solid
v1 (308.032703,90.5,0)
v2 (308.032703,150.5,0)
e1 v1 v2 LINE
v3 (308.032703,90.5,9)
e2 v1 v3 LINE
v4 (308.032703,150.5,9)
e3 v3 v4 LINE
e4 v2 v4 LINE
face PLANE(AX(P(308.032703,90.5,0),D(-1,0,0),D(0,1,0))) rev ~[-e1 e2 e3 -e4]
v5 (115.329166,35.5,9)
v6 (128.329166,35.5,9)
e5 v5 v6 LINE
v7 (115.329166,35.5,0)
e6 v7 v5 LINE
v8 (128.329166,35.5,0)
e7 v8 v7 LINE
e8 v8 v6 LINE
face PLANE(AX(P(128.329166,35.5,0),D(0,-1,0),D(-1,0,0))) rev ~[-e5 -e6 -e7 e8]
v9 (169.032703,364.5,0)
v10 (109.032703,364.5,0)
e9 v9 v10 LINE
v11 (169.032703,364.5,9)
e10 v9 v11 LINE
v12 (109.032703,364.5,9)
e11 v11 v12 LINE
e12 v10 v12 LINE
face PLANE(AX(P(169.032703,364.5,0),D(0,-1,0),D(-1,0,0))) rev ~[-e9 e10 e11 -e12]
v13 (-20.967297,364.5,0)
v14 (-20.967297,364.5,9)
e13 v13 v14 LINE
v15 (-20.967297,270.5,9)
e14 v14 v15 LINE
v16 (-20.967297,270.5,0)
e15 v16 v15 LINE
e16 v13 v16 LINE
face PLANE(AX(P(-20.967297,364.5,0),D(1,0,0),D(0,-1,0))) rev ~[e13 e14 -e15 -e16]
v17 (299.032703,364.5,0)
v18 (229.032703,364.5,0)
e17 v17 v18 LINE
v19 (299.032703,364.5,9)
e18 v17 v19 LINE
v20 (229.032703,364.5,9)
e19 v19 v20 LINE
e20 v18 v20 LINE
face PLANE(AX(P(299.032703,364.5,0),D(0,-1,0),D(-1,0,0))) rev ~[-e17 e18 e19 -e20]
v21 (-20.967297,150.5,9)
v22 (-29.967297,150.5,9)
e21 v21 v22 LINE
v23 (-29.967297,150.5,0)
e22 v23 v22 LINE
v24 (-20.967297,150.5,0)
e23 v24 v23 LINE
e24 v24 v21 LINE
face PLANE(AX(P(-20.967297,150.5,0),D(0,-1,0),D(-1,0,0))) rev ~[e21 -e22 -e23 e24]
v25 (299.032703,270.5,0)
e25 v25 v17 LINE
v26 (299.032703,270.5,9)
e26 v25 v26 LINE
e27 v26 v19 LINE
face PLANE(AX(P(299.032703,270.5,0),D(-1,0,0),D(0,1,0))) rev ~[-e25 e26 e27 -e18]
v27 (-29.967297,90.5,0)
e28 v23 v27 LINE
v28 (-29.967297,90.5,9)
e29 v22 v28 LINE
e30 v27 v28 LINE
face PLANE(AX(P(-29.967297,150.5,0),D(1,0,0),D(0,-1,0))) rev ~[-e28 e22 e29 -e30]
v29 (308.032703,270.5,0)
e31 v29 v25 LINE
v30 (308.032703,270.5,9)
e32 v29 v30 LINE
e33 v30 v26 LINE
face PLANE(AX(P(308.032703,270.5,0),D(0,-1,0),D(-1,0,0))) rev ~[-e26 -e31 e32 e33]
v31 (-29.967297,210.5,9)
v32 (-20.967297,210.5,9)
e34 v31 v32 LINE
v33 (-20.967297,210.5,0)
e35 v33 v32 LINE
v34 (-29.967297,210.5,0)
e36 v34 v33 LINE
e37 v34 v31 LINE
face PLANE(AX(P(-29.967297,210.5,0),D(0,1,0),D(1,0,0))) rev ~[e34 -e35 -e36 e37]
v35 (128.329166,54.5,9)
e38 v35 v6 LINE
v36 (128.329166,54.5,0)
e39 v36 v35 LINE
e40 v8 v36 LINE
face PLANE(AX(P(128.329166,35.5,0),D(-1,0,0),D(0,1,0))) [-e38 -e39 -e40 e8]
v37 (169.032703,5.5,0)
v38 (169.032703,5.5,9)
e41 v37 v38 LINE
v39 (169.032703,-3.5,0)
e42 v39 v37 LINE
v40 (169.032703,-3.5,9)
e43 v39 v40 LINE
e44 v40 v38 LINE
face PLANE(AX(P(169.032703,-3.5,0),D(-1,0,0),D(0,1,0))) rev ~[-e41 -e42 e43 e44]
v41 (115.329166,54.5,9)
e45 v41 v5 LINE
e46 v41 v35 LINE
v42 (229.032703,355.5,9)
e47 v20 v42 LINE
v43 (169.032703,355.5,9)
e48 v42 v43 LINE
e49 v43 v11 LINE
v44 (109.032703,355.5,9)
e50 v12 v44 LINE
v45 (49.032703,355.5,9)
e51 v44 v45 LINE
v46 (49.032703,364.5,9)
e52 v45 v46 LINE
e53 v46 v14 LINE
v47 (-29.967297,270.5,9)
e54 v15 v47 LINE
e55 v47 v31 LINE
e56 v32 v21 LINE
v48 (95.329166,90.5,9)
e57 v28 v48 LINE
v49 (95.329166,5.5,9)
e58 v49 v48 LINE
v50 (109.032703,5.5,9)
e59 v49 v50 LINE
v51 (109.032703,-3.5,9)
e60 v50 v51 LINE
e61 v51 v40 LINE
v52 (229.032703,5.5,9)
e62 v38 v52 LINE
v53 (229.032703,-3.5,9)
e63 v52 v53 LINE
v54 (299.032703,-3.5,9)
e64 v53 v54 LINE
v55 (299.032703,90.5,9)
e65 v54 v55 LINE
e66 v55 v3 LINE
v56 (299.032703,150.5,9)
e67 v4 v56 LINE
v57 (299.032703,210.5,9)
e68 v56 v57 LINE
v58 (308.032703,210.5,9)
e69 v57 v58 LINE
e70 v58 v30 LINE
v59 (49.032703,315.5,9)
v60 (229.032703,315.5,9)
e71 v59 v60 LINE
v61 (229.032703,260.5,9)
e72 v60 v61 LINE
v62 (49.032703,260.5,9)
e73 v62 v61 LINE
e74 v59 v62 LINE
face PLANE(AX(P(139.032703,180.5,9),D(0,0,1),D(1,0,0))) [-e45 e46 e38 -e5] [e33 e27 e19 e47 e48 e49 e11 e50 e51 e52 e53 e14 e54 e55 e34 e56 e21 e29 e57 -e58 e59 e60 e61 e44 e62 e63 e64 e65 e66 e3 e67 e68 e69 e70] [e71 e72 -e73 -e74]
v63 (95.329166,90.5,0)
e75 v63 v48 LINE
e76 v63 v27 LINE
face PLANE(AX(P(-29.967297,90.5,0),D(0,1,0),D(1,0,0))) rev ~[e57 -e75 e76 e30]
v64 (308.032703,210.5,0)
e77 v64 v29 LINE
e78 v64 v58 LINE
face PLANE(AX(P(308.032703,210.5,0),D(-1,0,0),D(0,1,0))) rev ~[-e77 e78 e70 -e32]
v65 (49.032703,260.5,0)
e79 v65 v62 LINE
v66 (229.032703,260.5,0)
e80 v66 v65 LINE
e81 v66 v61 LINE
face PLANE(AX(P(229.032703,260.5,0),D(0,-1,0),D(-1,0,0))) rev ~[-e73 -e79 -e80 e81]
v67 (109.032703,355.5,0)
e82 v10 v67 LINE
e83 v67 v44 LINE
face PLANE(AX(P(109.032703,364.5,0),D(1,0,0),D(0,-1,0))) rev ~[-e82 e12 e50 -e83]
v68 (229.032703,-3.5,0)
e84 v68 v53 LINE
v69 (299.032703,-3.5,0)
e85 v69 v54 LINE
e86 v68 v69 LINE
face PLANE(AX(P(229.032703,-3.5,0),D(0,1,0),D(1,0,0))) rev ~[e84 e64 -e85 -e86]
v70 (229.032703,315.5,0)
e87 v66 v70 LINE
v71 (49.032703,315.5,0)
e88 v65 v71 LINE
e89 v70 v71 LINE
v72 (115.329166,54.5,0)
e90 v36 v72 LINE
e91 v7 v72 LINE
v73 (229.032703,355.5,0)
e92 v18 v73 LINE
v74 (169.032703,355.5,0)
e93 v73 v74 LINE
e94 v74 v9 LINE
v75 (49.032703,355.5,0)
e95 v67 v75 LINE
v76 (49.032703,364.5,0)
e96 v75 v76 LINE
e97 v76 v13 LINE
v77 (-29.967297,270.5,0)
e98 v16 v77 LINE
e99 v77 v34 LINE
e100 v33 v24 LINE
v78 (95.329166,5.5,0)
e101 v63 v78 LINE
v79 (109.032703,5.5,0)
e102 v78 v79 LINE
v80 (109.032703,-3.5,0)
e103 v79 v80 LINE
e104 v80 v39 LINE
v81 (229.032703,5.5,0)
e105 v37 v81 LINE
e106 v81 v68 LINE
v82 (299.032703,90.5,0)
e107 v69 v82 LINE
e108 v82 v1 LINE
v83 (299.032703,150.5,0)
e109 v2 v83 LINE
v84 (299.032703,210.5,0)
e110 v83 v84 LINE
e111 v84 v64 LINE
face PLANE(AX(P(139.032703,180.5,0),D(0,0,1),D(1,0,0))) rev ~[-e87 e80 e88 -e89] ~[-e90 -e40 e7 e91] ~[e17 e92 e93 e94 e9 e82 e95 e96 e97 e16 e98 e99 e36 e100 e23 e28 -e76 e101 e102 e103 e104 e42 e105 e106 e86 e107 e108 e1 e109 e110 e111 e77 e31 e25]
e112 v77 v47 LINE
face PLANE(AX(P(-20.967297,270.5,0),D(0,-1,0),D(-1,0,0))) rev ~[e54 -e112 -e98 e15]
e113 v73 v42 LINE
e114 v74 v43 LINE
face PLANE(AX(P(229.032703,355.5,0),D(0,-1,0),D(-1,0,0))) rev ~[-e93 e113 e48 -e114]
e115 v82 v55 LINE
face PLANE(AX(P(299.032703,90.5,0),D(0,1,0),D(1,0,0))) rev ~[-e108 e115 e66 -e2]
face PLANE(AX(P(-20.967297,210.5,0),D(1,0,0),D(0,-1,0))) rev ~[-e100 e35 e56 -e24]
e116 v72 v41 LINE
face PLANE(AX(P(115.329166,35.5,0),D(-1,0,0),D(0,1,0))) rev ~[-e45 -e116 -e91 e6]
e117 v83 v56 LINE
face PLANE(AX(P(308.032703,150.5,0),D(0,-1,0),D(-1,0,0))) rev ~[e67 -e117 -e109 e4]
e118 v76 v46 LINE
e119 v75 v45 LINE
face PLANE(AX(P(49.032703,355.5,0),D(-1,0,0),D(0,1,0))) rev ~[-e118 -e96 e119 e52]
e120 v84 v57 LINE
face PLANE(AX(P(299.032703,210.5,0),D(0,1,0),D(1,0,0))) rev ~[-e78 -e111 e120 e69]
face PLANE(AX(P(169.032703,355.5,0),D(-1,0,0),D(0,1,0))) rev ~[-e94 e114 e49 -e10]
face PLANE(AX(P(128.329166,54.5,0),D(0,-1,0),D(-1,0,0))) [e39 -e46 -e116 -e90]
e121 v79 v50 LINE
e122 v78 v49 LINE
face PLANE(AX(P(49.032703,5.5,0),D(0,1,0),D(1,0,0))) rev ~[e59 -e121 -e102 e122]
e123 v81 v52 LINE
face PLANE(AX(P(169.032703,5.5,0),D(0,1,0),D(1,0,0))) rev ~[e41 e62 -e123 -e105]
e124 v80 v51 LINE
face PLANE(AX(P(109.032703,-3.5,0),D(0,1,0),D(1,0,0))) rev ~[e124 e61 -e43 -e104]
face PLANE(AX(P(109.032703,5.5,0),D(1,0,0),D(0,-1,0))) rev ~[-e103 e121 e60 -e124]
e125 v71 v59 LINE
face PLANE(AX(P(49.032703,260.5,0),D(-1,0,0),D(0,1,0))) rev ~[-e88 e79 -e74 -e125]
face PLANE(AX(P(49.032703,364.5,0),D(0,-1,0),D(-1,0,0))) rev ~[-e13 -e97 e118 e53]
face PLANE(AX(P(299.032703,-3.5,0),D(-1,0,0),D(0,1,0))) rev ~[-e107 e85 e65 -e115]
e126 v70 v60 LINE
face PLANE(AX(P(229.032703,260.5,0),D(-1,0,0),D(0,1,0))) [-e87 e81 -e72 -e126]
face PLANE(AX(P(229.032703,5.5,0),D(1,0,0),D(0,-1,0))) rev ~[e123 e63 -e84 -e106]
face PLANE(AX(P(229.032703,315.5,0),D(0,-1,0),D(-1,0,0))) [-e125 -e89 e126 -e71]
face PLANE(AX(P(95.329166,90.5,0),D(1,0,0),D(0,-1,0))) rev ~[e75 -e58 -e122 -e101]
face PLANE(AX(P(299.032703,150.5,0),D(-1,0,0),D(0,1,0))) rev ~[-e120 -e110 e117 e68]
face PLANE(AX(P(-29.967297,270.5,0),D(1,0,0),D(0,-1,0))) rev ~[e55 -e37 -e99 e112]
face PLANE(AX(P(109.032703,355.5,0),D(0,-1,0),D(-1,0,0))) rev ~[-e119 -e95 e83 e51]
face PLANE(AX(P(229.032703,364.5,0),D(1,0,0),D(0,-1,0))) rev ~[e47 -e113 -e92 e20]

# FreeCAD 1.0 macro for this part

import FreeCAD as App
import Part
import Sketcher

V = App.Vector


def add_polygon(sketch, points):
    """Adds a closed chain of lines whose ends are joined by coincident constraints."""
    first, n = sketch.GeometryCount, len(points)
    for a, b in zip(points, points[1:] + points[:1]):
        sketch.addGeometry(Part.LineSegment(App.Vector(*a, 0), App.Vector(*b, 0)), False)
    for i in range(n):
        sketch.addConstraint(Sketcher.Constraint("Coincident", first + i, 2, first + (i + 1) % n, 1))

doc = App.newDocument("Part")
body = doc.addObject("PartDesign::Body", "Body")

# Sketch on XY plane
sketch1 = doc.addObject("Sketcher::SketchObject", "Sketch")
body.addObject(sketch1)
sketch1.AttachmentSupport = (doc.XY_Plane, [""])
sketch1.MapMode = "FlatFace"
add_polygon(sketch1, [(169, 364), (109, 364), (109, 356), (49, 356), (49, 364), (-21, 364), (-21, 270), (-30, 270), (-30, 210), (-21, 210), (-21, 150), (-30, 150), (-30, 90), (-21, 90), (-21, -4), (49, -4), (49, 6), (109, 6), (109, -4), (169, -4), (169, 6), (229, 6), (229, -4), (299, -4), (299, 90), (308, 90), (308, 150), (299, 150), (299, 210), (308, 210), (308, 270), (299, 270), (299, 364), (229, 364), (229, 356), (169, 356)])  # lines 0-35
sketch1.addConstraint(Sketcher.Constraint("Horizontal", 0))
sketch1.addConstraint(Sketcher.Constraint("Vertical", 1))
sketch1.addConstraint(Sketcher.Constraint("Horizontal", 2))
sketch1.addConstraint(Sketcher.Constraint("Vertical", 3))
sketch1.addConstraint(Sketcher.Constraint("Horizontal", 4))
sketch1.addConstraint(Sketcher.Constraint("Vertical", 5))
sketch1.addConstraint(Sketcher.Constraint("Horizontal", 6))
sketch1.addConstraint(Sketcher.Constraint("Vertical", 7))
sketch1.addConstraint(Sketcher.Constraint("Horizontal", 8))
sketch1.addConstraint(Sketcher.Constraint("Vertical", 9))
sketch1.addConstraint(Sketcher.Constraint("Horizontal", 10))
sketch1.addConstraint(Sketcher.Constraint("Vertical", 11))
sketch1.addConstraint(Sketcher.Constraint("Horizontal", 12))
sketch1.addConstraint(Sketcher.Constraint("Vertical", 13))
sketch1.addConstraint(Sketcher.Constraint("Horizontal", 14))
sketch1.addConstraint(Sketcher.Constraint("Vertical", 15))
sketch1.addConstraint(Sketcher.Constraint("Horizontal", 16))
sketch1.addConstraint(Sketcher.Constraint("Vertical", 17))
sketch1.addConstraint(Sketcher.Constraint("Horizontal", 18))
sketch1.addConstraint(Sketcher.Constraint("Vertical", 19))
sketch1.addConstraint(Sketcher.Constraint("Horizontal", 20))
sketch1.addConstraint(Sketcher.Constraint("Vertical", 21))
sketch1.addConstraint(Sketcher.Constraint("Horizontal", 22))
sketch1.addConstraint(Sketcher.Constraint("Vertical", 23))
sketch1.addConstraint(Sketcher.Constraint("Horizontal", 24))
sketch1.addConstraint(Sketcher.Constraint("Vertical", 25))
sketch1.addConstraint(Sketcher.Constraint("Horizontal", 26))
sketch1.addConstraint(Sketcher.Constraint("Vertical", 27))
sketch1.addConstraint(Sketcher.Constraint("Horizontal", 28))
sketch1.addConstraint(Sketcher.Constraint("Vertical", 29))
sketch1.addConstraint(Sketcher.Constraint("Horizontal", 30))
sketch1.addConstraint(Sketcher.Constraint("Vertical", 31))
sketch1.addConstraint(Sketcher.Constraint("Horizontal", 32))
sketch1.addConstraint(Sketcher.Constraint("Vertical", 33))
sketch1.addConstraint(Sketcher.Constraint("Horizontal", 34))
sketch1.addConstraint(Sketcher.Constraint("Vertical", 35))
sketch1.addConstraint(Sketcher.Constraint("Horizontal", 0, 2, 3, 2))
sketch1.addConstraint(Sketcher.Constraint("Horizontal", 14, 2, 17, 2))
sketch1.addConstraint(Sketcher.Constraint("Horizontal", 16, 2, 19, 2))
sketch1.addConstraint(Sketcher.Constraint("Horizontal", 18, 2, 21, 2))
sketch1.addConstraint(Sketcher.Constraint("Horizontal", 12, 2, 23, 2))
sketch1.addConstraint(Sketcher.Constraint("Horizontal", 10, 2, 25, 2))
sketch1.addConstraint(Sketcher.Constraint("Horizontal", 8, 2, 27, 2))
sketch1.addConstraint(Sketcher.Constraint("Horizontal", 6, 2, 29, 2))
sketch1.addConstraint(Sketcher.Constraint("Horizontal", 4, 2, 31, 2))
sketch1.addConstraint(Sketcher.Constraint("Horizontal", 2, 2, 33, 2))
sketch1.addConstraint(Sketcher.Constraint("Vertical", 5, 2, 8, 2))
sketch1.addConstraint(Sketcher.Constraint("Vertical", 7, 2, 10, 2))
sketch1.addConstraint(Sketcher.Constraint("Vertical", 9, 2, 12, 2))
sketch1.addConstraint(Sketcher.Constraint("Vertical", 3, 2, 14, 2))
sketch1.addConstraint(Sketcher.Constraint("Vertical", 1, 2, 16, 2))
sketch1.addConstraint(Sketcher.Constraint("Vertical", 23, 2, 26, 2))
sketch1.addConstraint(Sketcher.Constraint("Vertical", 25, 2, 28, 2))
sketch1.addConstraint(Sketcher.Constraint("Vertical", 27, 2, 30, 2))
sketch1.addConstraint(Sketcher.Constraint("Vertical", 21, 2, 32, 2))
sketch1.addConstraint(Sketcher.Constraint("Vertical", 19, 2, 34, 2))
sketch1.addConstraint(Sketcher.Constraint("Equal", 0, 2))
sketch1.addConstraint(Sketcher.Constraint("Equal", 18, 20))
sketch1.addConstraint(Sketcher.Constraint("Equal", 14, 22))
sketch1.addConstraint(Sketcher.Constraint("Equal", 12, 24))
sketch1.addConstraint(Sketcher.Constraint("Equal", 30, 1))
sketch1.addConstraint(Sketcher.Constraint("Equal", 34, 7))
sketch1.addConstraint(Sketcher.Constraint("Equal", 7, 9))
sketch1.addConstraint(Sketcher.Constraint("Equal", 9, 11))
sketch1.addConstraint(Sketcher.Constraint("Equal", 5, 13))
sketch1.addConstraint(Sketcher.Constraint("Equal", 3, 15))
sketch1.addConstraint(Sketcher.Constraint("DistanceX", 0, 2, 0, 1, 60.0))
sketch1.addConstraint(Sketcher.Constraint("DistanceX", 4, 2, 4, 1, 70.0))
sketch1.addConstraint(Sketcher.Constraint("DistanceX", 6, 2, 6, 1, 9.0))
sketch1.addConstraint(Sketcher.Constraint("DistanceY", 5, 2, 5, 1, 94.0))
sketch1.addConstraint(Sketcher.Constraint("DistanceY", -1, 1, 0, 2, 364.5))
sketch1.addConstraint(Sketcher.Constraint("DistanceX", -1, 1, 0, 2, 109.032703))
pad1 = doc.addObject("PartDesign::Pad", "Pad")
body.addObject(pad1)
pad1.Profile = sketch1
pad1.Length = 9

# Sketch on XY plane
sketch2 = doc.addObject("Sketcher::SketchObject", "Sketch001")
body.addObject(sketch2)
sketch2.AttachmentSupport = (doc.XY_Plane, [""])
sketch2.MapMode = "FlatFace"
add_polygon(sketch2, [(95, 90), (95, 6), (52, 6), (52, -20), (-23, -20), (-23, 6), (-30, 6), (-30, 90)])  # lines 0-7
sketch2.addConstraint(Sketcher.Constraint("Vertical", 0))
sketch2.addConstraint(Sketcher.Constraint("Horizontal", 1))
sketch2.addConstraint(Sketcher.Constraint("Vertical", 2))
sketch2.addConstraint(Sketcher.Constraint("Horizontal", 3))
sketch2.addConstraint(Sketcher.Constraint("Vertical", 4))
sketch2.addConstraint(Sketcher.Constraint("Horizontal", 5))
sketch2.addConstraint(Sketcher.Constraint("Vertical", 6))
sketch2.addConstraint(Sketcher.Constraint("Horizontal", 7))
sketch2.addConstraint(Sketcher.Constraint("Horizontal", 1, 2, 4, 2))
sketch2.addConstraint(Sketcher.Constraint("DistanceY", 0, 2, 0, 1, 85.0))
sketch2.addConstraint(Sketcher.Constraint("DistanceY", -1, 1, 0, 2, 5.5))
sketch2.addConstraint(Sketcher.Constraint("DistanceX", 1, 2, 1, 1, 43.605499))
sketch2.addConstraint(Sketcher.Constraint("DistanceX", 3, 2, 3, 1, 74.887019))
sketch2.addConstraint(Sketcher.Constraint("DistanceY", 2, 2, 2, 1, 25.704308))
sketch2.addConstraint(Sketcher.Constraint("DistanceX", 5, 2, 5, 1, 6.803946))
sketch2.addConstraint(Sketcher.Constraint("DistanceX", 3, 2, -1, 1, 23.163352))
pocket1 = doc.addObject("PartDesign::Pocket", "Pocket")
body.addObject(pocket1)
pocket1.Profile = sketch2
pocket1.Length = 10
pocket1.Reversed = True

# Sketch on XY plane
sketch3 = doc.addObject("Sketcher::SketchObject", "Sketch002")
body.addObject(sketch3)
sketch3.AttachmentSupport = (doc.XY_Plane, [""])
sketch3.MapMode = "FlatFace"
add_polygon(sketch3, [(128, 54), (128, 36), (115, 36), (115, 54)])  # lines 0-3
sketch3.addConstraint(Sketcher.Constraint("Vertical", 0))
sketch3.addConstraint(Sketcher.Constraint("Horizontal", 1))
sketch3.addConstraint(Sketcher.Constraint("Vertical", 2))
sketch3.addConstraint(Sketcher.Constraint("Horizontal", 3))
sketch3.addConstraint(Sketcher.Constraint("DistanceX", 1, 2, 1, 1, 13.0))
sketch3.addConstraint(Sketcher.Constraint("DistanceY", 0, 2, 0, 1, 19.0))
sketch3.addConstraint(Sketcher.Constraint("DistanceY", -1, 1, 0, 2, 35.5))
sketch3.addConstraint(Sketcher.Constraint("DistanceX", -1, 1, 0, 2, 128.329166))
pocket2 = doc.addObject("PartDesign::Pocket", "Pocket001")
body.addObject(pocket2)
pocket2.Profile = sketch3
pocket2.Length = 10
pocket2.Reversed = True

# Sketch on XY plane
sketch4 = doc.addObject("Sketcher::SketchObject", "Sketch003")
body.addObject(sketch4)
sketch4.AttachmentSupport = (doc.XY_Plane, [""])
sketch4.MapMode = "FlatFace"
add_polygon(sketch4, [(229, 316), (229, 260), (49, 260), (49, 316)])  # lines 0-3
sketch4.addConstraint(Sketcher.Constraint("Vertical", 0))
sketch4.addConstraint(Sketcher.Constraint("Horizontal", 1))
sketch4.addConstraint(Sketcher.Constraint("Vertical", 2))
sketch4.addConstraint(Sketcher.Constraint("Horizontal", 3))
sketch4.addConstraint(Sketcher.Constraint("DistanceX", 1, 2, 1, 1, 180.0))
sketch4.addConstraint(Sketcher.Constraint("DistanceY", 0, 2, 0, 1, 55.0))
sketch4.addConstraint(Sketcher.Constraint("DistanceY", -1, 1, 0, 2, 260.5))
sketch4.addConstraint(Sketcher.Constraint("DistanceX", -1, 1, 0, 2, 229.032703))
pocket3 = doc.addObject("PartDesign::Pocket", "Pocket002")
body.addObject(pocket3)
pocket3.Profile = sketch4
pocket3.Type = "ThroughAll"
pocket3.Reversed = True

doc.recompute()
